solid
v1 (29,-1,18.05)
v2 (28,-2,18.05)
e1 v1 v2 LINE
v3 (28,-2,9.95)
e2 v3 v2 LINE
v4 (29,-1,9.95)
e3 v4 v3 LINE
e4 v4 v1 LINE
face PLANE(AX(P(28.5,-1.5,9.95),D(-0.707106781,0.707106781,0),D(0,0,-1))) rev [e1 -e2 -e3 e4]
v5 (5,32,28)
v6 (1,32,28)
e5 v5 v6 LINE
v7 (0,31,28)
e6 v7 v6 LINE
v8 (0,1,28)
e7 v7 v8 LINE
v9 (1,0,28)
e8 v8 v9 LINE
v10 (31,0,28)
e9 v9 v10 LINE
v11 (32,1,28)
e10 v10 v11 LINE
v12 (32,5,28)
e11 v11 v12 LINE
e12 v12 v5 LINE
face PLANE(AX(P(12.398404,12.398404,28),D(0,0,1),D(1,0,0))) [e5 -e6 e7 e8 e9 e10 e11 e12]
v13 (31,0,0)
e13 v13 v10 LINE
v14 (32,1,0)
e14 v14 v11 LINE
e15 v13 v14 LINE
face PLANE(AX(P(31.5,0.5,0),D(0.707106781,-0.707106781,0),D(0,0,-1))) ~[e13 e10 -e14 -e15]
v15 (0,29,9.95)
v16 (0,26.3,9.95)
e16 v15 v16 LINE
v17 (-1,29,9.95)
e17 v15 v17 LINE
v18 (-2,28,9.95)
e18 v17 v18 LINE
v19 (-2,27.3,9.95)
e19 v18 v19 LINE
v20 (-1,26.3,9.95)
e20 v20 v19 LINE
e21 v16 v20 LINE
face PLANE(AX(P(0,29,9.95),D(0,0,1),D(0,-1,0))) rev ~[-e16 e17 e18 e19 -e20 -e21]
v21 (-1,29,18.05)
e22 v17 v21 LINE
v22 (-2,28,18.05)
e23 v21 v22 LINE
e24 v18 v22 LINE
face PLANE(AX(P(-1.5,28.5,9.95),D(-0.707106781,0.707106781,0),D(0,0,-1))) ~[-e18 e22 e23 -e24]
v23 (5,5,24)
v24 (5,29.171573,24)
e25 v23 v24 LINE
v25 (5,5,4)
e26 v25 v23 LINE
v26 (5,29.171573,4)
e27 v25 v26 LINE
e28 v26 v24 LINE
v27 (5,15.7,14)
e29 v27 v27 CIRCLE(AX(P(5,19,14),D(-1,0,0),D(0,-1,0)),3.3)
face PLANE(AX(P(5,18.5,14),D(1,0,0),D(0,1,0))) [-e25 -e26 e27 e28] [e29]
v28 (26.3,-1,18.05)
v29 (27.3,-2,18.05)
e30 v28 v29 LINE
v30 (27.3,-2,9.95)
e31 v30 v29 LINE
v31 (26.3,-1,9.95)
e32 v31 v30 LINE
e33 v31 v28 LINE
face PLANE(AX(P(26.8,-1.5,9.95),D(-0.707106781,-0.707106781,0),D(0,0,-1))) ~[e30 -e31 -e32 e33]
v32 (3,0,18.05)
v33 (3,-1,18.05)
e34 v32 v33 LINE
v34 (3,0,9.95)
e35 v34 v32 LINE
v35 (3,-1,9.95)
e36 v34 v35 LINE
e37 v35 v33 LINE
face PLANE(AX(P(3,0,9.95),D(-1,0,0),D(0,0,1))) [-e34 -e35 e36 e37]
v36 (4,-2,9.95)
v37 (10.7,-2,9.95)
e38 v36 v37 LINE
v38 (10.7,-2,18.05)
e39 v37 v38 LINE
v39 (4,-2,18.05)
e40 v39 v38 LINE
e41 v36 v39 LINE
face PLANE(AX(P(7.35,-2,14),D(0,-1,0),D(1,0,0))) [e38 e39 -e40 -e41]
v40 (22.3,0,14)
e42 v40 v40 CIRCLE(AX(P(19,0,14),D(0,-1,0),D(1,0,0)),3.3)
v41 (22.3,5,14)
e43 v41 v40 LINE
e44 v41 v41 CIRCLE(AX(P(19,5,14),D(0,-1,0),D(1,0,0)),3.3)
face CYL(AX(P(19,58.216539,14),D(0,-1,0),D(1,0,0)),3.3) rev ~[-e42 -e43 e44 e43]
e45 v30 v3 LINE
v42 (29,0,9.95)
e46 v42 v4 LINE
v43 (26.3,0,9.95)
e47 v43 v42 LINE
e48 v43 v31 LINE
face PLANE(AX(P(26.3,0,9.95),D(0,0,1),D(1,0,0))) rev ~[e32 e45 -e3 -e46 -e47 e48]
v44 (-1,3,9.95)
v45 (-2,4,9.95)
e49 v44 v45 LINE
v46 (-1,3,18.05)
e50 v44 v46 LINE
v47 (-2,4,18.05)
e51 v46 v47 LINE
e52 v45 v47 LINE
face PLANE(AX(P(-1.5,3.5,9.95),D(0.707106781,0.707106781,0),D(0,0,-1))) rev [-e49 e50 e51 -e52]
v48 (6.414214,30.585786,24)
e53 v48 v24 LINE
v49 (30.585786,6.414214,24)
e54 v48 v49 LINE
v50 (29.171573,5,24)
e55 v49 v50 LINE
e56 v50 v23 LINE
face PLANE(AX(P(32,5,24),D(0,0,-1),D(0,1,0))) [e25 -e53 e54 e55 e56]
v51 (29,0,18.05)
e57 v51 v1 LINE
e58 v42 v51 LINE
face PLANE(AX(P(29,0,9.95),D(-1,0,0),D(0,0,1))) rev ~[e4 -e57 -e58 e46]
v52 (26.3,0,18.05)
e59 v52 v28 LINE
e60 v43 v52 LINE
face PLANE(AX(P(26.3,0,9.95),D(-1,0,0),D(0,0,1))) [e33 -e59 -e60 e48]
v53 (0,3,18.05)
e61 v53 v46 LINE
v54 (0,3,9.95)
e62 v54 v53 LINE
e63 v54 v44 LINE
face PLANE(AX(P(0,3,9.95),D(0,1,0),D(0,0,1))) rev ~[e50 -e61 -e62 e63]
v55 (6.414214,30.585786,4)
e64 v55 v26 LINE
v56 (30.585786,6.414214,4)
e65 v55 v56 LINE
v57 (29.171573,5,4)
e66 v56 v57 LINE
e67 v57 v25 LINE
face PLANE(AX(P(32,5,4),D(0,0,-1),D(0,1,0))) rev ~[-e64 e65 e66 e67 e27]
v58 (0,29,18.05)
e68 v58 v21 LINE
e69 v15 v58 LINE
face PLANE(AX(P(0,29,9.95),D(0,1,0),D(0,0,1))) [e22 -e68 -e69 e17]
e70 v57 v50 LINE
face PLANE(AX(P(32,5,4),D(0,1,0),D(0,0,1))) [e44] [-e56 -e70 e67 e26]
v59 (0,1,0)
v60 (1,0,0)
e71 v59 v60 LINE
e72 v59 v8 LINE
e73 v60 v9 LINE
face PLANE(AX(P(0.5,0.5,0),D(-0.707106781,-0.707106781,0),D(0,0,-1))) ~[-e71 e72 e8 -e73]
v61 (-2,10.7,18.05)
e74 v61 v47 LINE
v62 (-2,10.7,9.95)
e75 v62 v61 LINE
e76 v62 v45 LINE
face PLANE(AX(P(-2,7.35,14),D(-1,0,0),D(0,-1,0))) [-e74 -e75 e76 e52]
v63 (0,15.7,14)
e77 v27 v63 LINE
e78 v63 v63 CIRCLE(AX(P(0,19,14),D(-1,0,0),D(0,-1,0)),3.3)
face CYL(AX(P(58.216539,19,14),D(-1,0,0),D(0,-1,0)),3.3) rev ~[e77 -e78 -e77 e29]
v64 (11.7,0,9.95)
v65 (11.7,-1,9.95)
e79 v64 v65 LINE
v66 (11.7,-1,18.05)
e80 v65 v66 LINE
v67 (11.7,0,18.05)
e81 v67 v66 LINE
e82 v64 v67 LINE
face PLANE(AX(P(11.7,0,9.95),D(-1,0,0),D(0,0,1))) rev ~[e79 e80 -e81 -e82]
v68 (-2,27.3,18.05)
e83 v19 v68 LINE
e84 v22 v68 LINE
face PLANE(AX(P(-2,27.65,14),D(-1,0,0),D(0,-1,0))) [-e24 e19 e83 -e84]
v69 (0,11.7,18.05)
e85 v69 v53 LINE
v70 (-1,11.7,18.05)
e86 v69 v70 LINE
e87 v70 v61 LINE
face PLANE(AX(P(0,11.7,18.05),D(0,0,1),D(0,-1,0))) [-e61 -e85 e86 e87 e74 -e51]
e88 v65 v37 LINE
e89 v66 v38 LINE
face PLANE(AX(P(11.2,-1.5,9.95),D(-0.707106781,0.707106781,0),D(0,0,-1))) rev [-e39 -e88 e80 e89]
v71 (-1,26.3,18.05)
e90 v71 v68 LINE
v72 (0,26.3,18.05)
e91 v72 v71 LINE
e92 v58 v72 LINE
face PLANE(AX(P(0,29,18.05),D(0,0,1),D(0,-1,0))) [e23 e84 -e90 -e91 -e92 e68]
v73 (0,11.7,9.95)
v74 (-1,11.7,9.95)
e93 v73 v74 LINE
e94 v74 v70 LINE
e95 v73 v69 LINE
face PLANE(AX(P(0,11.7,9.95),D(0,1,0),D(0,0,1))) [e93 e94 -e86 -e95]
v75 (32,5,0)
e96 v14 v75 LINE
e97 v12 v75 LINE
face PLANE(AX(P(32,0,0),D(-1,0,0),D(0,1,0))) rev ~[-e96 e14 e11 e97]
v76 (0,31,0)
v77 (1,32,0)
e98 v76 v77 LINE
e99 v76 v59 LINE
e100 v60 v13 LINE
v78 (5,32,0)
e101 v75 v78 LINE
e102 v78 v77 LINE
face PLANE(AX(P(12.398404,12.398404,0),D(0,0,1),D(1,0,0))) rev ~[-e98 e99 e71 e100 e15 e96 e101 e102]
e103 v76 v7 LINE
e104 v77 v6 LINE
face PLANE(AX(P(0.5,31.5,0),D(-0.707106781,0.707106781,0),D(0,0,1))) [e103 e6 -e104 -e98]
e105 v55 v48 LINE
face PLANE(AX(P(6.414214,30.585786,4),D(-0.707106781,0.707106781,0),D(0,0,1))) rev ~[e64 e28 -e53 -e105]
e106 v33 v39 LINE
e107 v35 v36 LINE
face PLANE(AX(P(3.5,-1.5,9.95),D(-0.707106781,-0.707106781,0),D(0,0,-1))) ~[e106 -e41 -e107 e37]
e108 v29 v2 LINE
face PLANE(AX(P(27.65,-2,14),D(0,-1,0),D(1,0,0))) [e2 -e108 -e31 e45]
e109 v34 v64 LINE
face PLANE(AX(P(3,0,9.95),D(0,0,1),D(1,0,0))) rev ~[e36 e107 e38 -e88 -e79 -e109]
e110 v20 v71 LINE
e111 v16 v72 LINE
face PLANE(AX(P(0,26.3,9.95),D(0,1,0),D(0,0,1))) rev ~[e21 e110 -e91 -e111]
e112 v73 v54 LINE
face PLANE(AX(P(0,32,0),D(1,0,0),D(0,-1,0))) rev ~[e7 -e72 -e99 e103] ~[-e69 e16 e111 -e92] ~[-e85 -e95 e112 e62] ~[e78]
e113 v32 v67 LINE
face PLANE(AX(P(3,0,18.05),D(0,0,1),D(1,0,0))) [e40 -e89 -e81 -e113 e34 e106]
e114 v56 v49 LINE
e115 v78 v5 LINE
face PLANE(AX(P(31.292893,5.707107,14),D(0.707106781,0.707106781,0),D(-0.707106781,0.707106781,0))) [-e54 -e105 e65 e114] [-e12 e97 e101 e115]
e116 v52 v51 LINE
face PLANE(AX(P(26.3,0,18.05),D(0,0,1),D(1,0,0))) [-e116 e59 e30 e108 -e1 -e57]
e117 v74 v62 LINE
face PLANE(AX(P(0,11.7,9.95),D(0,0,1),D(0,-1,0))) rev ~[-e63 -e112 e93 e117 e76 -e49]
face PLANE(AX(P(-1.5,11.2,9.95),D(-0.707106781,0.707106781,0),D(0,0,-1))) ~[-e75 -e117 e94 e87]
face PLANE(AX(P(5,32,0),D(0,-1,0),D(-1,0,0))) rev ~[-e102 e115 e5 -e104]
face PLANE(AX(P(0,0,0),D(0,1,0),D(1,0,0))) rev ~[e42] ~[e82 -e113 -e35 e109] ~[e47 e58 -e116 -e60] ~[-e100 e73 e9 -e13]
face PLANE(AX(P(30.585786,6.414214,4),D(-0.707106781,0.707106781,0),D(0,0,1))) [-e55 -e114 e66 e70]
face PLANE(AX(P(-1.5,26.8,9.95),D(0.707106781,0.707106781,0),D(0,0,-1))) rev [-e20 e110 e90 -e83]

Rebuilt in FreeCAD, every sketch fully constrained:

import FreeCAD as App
import Part
import Sketcher

V = App.Vector
Q = App.Units.Quantity


def edges_at(feature, points):
    """Names of the edges that pass closest to the given points."""
    edges = feature.Shape.Edges
    near = lambda p: min(range(len(edges)), key=lambda i: edges[i].distToShape(Part.Vertex(*p))[0])
    return sorted({f"Edge{near(p) + 1}" for p in points})


def add_polygon(sketch, points):
    """Adds a closed chain of lines whose ends are joined by coincident constraints."""
    first, n = sketch.GeometryCount, len(points)
    for a, b in zip(points, points[1:] + points[:1]):
        sketch.addGeometry(Part.LineSegment(App.Vector(*a, 0), App.Vector(*b, 0)), False)
    for i in range(n):
        sketch.addConstraint(Sketcher.Constraint("Coincident", first + i, 2, first + (i + 1) % n, 1))

doc = App.newDocument("Part")
params = doc.addObject("Spreadsheet::Sheet", "Params")
for row, (alias, value) in enumerate([
    ("sketch1_width", "32 mm"),
    ("sketch1_width2", "5 mm"),
    ("pad1_length", "28 mm"),
    ("sketch2_width", "27 mm"),
    ("sketch2_height", "20 mm"),
    ("pocket1_length", "27 mm"),
    ("sketch3_diameter", "6.6 mm"),
    ("hole_diameter", "6.6 mm"),
    ("sketch4_diameter", "6.6 mm"),
    ("hole2_diameter", "6.6 mm"),
    ("sketch5_width", "2.7 mm"),
    ("sketch5_width2", "8.7 mm"),
    ("sketch5_height", "8.1 mm"),
    ("pad2_length", "2 mm"),
    ("sketch6_width", "2.7 mm"),
    ("sketch6_width2", "8.7 mm"),
    ("sketch6_height", "8.1 mm"),
    ("pad3_length", "2 mm"),
    ("chamfer_size", "1 mm"),
    ("sketch7_width", "2 mm"),
    ("sketch7_height", "20 mm"),
    ("pad4_length", "2.5 mm"),
], start=1):
    params.set(f"A{row}", alias)
    params.set(f"B{row}", "=" + value)
    params.setAlias(f"B{row}", alias)

body = doc.addObject("PartDesign::Body", "Body")

# Sketch on XY plane
sketch1 = doc.addObject("Sketcher::SketchObject", "Sketch")
body.addObject(sketch1)
sketch1.AttachmentSupport = (doc.XY_Plane, [""])
sketch1.MapMode = "FlatFace"
add_polygon(sketch1, [(0, 32), (0, 0), (32, 0), (32, 5), (5, 32)])  # lines 0-4
sketch1.addConstraint([
    Sketcher.Constraint("Vertical", 0),
    Sketcher.Constraint("Horizontal", 1),
    Sketcher.Constraint("Vertical", 2),
    Sketcher.Constraint("Horizontal", 4),
    Sketcher.Constraint("Coincident", 0, 2, -1, 1),
    Sketcher.Constraint("Equal", 1, 0),
    Sketcher.Constraint("Equal", 4, 2),
    Sketcher.Constraint("DistanceX", 1, 1, 1, 2, Q("32 mm")),
    Sketcher.Constraint("DistanceX", 4, 2, 4, 1, Q("5 mm")),
])
sketch1.setExpression("Constraints[12]", "Params.sketch1_width")
sketch1.setExpression("Constraints[13]", "Params.sketch1_width2")
pad1 = doc.addObject("PartDesign::Pad", "Pad")
body.addObject(pad1)
pad1.Profile = sketch1
pad1.setExpression("Length", "Params.pad1_length")

# Sketch on YZ plane
sketch2 = doc.addObject("Sketcher::SketchObject", "Sketch001")
body.addObject(sketch2)
sketch2.AttachmentSupport = (doc.YZ_Plane, [""])
sketch2.MapMode = "FlatFace"
sketch2.AttachmentOffset = App.Placement(V(0, 0, 32), App.Rotation())
add_polygon(sketch2, [(5, 24), (5, 4), (32, 4), (32, 24)])  # lines 0-3
sketch2.addConstraint([
    Sketcher.Constraint("Vertical", 0),
    Sketcher.Constraint("Horizontal", 1),
    Sketcher.Constraint("Vertical", 2),
    Sketcher.Constraint("Horizontal", 3),
    Sketcher.Constraint("DistanceX", 1, 1, 1, 2, Q("27 mm")),
    Sketcher.Constraint("DistanceY", 0, 2, 0, 1, Q("20 mm")),
    Sketcher.Constraint("DistanceX", -1, 1, 0, 2, Q("5 mm")),
    Sketcher.Constraint("DistanceY", -1, 1, 0, 2, Q("4 mm")),
])
sketch2.setExpression("Constraints[8]", "Params.sketch2_width")
sketch2.setExpression("Constraints[9]", "Params.sketch2_height")
pocket1 = doc.addObject("PartDesign::Pocket", "Pocket")
body.addObject(pocket1)
pocket1.Profile = sketch2
pocket1.setExpression("Length", "Params.pocket1_length")

# Sketch on YZ plane
sketch3 = doc.addObject("Sketcher::SketchObject", "Sketch002")
body.addObject(sketch3)
sketch3.AttachmentSupport = (doc.YZ_Plane, [""])
sketch3.MapMode = "FlatFace"
sketch3.AttachmentOffset = App.Placement(V(0, 0, 5), App.Rotation())
sketch3.addGeometry(Part.Circle(V(19, 14, 0), V(0, 0, 1), 3.3), False)
sketch3.addConstraint([
    Sketcher.Constraint("Diameter", 0, Q("6.6 mm")),
    Sketcher.Constraint("DistanceX", -1, 1, 0, 3, Q("19 mm")),
    Sketcher.Constraint("DistanceY", -1, 1, 0, 3, Q("14 mm")),
])
sketch3.setExpression("Constraints[0]", "Params.sketch3_diameter")
doc.recompute()
hole = doc.addObject("PartDesign::Hole", "Hole")
body.addObject(hole)
hole.Profile = sketch3
hole.ThreadType = "None"
hole.setExpression("Diameter", "Params.hole_diameter")
hole.DepthType = "ThroughAll"

# Sketch on XZ plane
sketch4 = doc.addObject("Sketcher::SketchObject", "Sketch003")
body.addObject(sketch4)
sketch4.AttachmentSupport = (doc.XZ_Plane, [""])
sketch4.MapMode = "FlatFace"
sketch4.AttachmentOffset = App.Placement(V(0, 0, -5), App.Rotation())
sketch4.addGeometry(Part.Circle(V(19, 14, 0), V(0, 0, 1), 3.3), False)
sketch4.addConstraint([
    Sketcher.Constraint("Diameter", 0, Q("6.6 mm")),
    Sketcher.Constraint("DistanceX", -1, 1, 0, 3, Q("19 mm")),
    Sketcher.Constraint("DistanceY", -1, 1, 0, 3, Q("14 mm")),
])
sketch4.setExpression("Constraints[0]", "Params.sketch4_diameter")
doc.recompute()
hole2 = doc.addObject("PartDesign::Hole", "Hole001")
body.addObject(hole2)
hole2.Profile = sketch4
hole2.ThreadType = "None"
hole2.setExpression("Diameter", "Params.hole2_diameter")
hole2.DepthType = "ThroughAll"
hole2.Reversed = True

# Sketch on XZ plane
sketch5 = doc.addObject("Sketcher::SketchObject", "Sketch004")
body.addObject(sketch5)
sketch5.AttachmentSupport = (doc.XZ_Plane, [""])
sketch5.MapMode = "FlatFace"
add_polygon(sketch5, [(26.3, 18.05), (26.3, 9.95), (29, 9.95), (29, 18.05)])  # lines 0-3
add_polygon(sketch5, [(3, 18.05), (3, 9.95), (11.7, 9.95), (11.7, 18.05)])  # lines 4-7
sketch5.addConstraint([
    Sketcher.Constraint("Vertical", 0),
    Sketcher.Constraint("Horizontal", 1),
    Sketcher.Constraint("Vertical", 2),
    Sketcher.Constraint("Horizontal", 3),
    Sketcher.Constraint("Vertical", 4),
    Sketcher.Constraint("Horizontal", 5),
    Sketcher.Constraint("Vertical", 6),
    Sketcher.Constraint("Horizontal", 7),
    Sketcher.Constraint("Horizontal", 1, 2, 4, 2),
    Sketcher.Constraint("Horizontal", 3, 2, 6, 2),
    Sketcher.Constraint("DistanceX", 1, 1, 1, 2, Q("2.7 mm")),
    Sketcher.Constraint("DistanceX", 5, 1, 5, 2, Q("8.7 mm")),
    Sketcher.Constraint("DistanceY", 0, 2, 0, 1, Q("8.1 mm")),
    Sketcher.Constraint("DistanceX", -1, 1, 1, 2, Q("29 mm")),
    Sketcher.Constraint("DistanceX", -1, 1, 4, 2, Q("3 mm")),
    Sketcher.Constraint("DistanceY", -1, 1, 0, 2, Q("9.95 mm")),
])
sketch5.setExpression("Constraints[18]", "Params.sketch5_width")
sketch5.setExpression("Constraints[19]", "Params.sketch5_width2")
sketch5.setExpression("Constraints[20]", "Params.sketch5_height")
pad2 = doc.addObject("PartDesign::Pad", "Pad001")
body.addObject(pad2)
pad2.Profile = sketch5
pad2.setExpression("Length", "Params.pad2_length")

# Sketch on YZ plane
sketch6 = doc.addObject("Sketcher::SketchObject", "Sketch005")
body.addObject(sketch6)
sketch6.AttachmentSupport = (doc.YZ_Plane, [""])
sketch6.MapMode = "FlatFace"
add_polygon(sketch6, [(29, 18.05), (29, 9.95), (26.3, 9.95), (26.3, 18.05)])  # lines 0-3
add_polygon(sketch6, [(11.7, 18.05), (11.7, 9.95), (3, 9.95), (3, 18.05)])  # lines 4-7
sketch6.addConstraint([
    Sketcher.Constraint("Vertical", 0),
    Sketcher.Constraint("Horizontal", 1),
    Sketcher.Constraint("Vertical", 2),
    Sketcher.Constraint("Horizontal", 3),
    Sketcher.Constraint("Vertical", 4),
    Sketcher.Constraint("Horizontal", 5),
    Sketcher.Constraint("Vertical", 6),
    Sketcher.Constraint("Horizontal", 7),
    Sketcher.Constraint("Horizontal", 1, 2, 4, 2),
    Sketcher.Constraint("Horizontal", 3, 2, 6, 2),
    Sketcher.Constraint("DistanceX", 1, 2, 1, 1, Q("2.7 mm")),
    Sketcher.Constraint("DistanceX", 5, 2, 5, 1, Q("8.7 mm")),
    Sketcher.Constraint("DistanceY", 0, 2, 0, 1, Q("8.1 mm")),
    Sketcher.Constraint("DistanceX", -1, 1, 0, 2, Q("29 mm")),
    Sketcher.Constraint("DistanceX", -1, 1, 5, 2, Q("3 mm")),
    Sketcher.Constraint("DistanceY", -1, 1, 0, 2, Q("9.95 mm")),
])
sketch6.setExpression("Constraints[18]", "Params.sketch6_width")
sketch6.setExpression("Constraints[19]", "Params.sketch6_width2")
sketch6.setExpression("Constraints[20]", "Params.sketch6_height")
pad3 = doc.addObject("PartDesign::Pad", "Pad002")
body.addObject(pad3)
pad3.Profile = sketch6
pad3.setExpression("Length", "Params.pad3_length")
pad3.Reversed = True
doc.recompute()

chamfer = doc.addObject("PartDesign::Chamfer", "Chamfer")
body.addObject(chamfer)
chamfer.Base = (pad3, edges_at(pad3, [
    (0, 32, 14),
    (-2, 29, 14),
    (-2, 26.3, 14),
    (-2, 11.7, 14),
    (-2, 3, 14),
    (0, 0, 14),
    (3, -2, 14),
    (11.7, -2, 14),
    (26.3, -2, 14),
    (29, -2, 14),
    (32, 0, 14),
]))
chamfer.setExpression("Size", "Params.chamfer_size")

# Sketch on an angled plane
sketch7 = doc.addObject("Sketcher::SketchObject", "Sketch006")
body.addObject(sketch7)
sketch7.Placement = App.Placement(V(18.5, 18.5, 0), App.Rotation(V(-0.707106781, 0.707106781, 0), V(0, 0, 0.999999999), V(0.707106781, 0.707106781, 0), "ZXY"))
add_polygon(sketch7, [(-19.091883, 24), (-19.091883, 4), (-17.091883, 4), (-17.091883, 24)])  # lines 0-3
add_polygon(sketch7, [(17.091883, 24), (17.091883, 4), (19.091883, 4), (19.091883, 24)])  # lines 4-7
sketch7.addConstraint([
    Sketcher.Constraint("Vertical", 0),
    Sketcher.Constraint("Horizontal", 1),
    Sketcher.Constraint("Vertical", 2),
    Sketcher.Constraint("Horizontal", 3),
    Sketcher.Constraint("Vertical", 4),
    Sketcher.Constraint("Horizontal", 5),
    Sketcher.Constraint("Vertical", 6),
    Sketcher.Constraint("Horizontal", 7),
    Sketcher.Constraint("Symmetric", 1, 2, 4, 2, -2),
    Sketcher.Constraint("Symmetric", 3, 2, 6, 2, -2),
    Sketcher.Constraint("DistanceX", 1, 1, 1, 2, Q("2 mm")),
    Sketcher.Constraint("DistanceY", 0, 2, 0, 1, Q("20 mm")),
    Sketcher.Constraint("DistanceY", -1, 1, 0, 2, Q("4 mm")),
    Sketcher.Constraint("DistanceX", 0, 2, -1, 1, Q("19.091883 mm")),
])
sketch7.setExpression("Constraints[18]", "Params.sketch7_width")
sketch7.setExpression("Constraints[19]", "Params.sketch7_height")
pad4 = doc.addObject("PartDesign::Pad", "Pad003")
body.addObject(pad4)
pad4.Profile = sketch7
pad4.setExpression("Length", "Params.pad4_length")
pad4.Reversed = True

doc.recompute()
